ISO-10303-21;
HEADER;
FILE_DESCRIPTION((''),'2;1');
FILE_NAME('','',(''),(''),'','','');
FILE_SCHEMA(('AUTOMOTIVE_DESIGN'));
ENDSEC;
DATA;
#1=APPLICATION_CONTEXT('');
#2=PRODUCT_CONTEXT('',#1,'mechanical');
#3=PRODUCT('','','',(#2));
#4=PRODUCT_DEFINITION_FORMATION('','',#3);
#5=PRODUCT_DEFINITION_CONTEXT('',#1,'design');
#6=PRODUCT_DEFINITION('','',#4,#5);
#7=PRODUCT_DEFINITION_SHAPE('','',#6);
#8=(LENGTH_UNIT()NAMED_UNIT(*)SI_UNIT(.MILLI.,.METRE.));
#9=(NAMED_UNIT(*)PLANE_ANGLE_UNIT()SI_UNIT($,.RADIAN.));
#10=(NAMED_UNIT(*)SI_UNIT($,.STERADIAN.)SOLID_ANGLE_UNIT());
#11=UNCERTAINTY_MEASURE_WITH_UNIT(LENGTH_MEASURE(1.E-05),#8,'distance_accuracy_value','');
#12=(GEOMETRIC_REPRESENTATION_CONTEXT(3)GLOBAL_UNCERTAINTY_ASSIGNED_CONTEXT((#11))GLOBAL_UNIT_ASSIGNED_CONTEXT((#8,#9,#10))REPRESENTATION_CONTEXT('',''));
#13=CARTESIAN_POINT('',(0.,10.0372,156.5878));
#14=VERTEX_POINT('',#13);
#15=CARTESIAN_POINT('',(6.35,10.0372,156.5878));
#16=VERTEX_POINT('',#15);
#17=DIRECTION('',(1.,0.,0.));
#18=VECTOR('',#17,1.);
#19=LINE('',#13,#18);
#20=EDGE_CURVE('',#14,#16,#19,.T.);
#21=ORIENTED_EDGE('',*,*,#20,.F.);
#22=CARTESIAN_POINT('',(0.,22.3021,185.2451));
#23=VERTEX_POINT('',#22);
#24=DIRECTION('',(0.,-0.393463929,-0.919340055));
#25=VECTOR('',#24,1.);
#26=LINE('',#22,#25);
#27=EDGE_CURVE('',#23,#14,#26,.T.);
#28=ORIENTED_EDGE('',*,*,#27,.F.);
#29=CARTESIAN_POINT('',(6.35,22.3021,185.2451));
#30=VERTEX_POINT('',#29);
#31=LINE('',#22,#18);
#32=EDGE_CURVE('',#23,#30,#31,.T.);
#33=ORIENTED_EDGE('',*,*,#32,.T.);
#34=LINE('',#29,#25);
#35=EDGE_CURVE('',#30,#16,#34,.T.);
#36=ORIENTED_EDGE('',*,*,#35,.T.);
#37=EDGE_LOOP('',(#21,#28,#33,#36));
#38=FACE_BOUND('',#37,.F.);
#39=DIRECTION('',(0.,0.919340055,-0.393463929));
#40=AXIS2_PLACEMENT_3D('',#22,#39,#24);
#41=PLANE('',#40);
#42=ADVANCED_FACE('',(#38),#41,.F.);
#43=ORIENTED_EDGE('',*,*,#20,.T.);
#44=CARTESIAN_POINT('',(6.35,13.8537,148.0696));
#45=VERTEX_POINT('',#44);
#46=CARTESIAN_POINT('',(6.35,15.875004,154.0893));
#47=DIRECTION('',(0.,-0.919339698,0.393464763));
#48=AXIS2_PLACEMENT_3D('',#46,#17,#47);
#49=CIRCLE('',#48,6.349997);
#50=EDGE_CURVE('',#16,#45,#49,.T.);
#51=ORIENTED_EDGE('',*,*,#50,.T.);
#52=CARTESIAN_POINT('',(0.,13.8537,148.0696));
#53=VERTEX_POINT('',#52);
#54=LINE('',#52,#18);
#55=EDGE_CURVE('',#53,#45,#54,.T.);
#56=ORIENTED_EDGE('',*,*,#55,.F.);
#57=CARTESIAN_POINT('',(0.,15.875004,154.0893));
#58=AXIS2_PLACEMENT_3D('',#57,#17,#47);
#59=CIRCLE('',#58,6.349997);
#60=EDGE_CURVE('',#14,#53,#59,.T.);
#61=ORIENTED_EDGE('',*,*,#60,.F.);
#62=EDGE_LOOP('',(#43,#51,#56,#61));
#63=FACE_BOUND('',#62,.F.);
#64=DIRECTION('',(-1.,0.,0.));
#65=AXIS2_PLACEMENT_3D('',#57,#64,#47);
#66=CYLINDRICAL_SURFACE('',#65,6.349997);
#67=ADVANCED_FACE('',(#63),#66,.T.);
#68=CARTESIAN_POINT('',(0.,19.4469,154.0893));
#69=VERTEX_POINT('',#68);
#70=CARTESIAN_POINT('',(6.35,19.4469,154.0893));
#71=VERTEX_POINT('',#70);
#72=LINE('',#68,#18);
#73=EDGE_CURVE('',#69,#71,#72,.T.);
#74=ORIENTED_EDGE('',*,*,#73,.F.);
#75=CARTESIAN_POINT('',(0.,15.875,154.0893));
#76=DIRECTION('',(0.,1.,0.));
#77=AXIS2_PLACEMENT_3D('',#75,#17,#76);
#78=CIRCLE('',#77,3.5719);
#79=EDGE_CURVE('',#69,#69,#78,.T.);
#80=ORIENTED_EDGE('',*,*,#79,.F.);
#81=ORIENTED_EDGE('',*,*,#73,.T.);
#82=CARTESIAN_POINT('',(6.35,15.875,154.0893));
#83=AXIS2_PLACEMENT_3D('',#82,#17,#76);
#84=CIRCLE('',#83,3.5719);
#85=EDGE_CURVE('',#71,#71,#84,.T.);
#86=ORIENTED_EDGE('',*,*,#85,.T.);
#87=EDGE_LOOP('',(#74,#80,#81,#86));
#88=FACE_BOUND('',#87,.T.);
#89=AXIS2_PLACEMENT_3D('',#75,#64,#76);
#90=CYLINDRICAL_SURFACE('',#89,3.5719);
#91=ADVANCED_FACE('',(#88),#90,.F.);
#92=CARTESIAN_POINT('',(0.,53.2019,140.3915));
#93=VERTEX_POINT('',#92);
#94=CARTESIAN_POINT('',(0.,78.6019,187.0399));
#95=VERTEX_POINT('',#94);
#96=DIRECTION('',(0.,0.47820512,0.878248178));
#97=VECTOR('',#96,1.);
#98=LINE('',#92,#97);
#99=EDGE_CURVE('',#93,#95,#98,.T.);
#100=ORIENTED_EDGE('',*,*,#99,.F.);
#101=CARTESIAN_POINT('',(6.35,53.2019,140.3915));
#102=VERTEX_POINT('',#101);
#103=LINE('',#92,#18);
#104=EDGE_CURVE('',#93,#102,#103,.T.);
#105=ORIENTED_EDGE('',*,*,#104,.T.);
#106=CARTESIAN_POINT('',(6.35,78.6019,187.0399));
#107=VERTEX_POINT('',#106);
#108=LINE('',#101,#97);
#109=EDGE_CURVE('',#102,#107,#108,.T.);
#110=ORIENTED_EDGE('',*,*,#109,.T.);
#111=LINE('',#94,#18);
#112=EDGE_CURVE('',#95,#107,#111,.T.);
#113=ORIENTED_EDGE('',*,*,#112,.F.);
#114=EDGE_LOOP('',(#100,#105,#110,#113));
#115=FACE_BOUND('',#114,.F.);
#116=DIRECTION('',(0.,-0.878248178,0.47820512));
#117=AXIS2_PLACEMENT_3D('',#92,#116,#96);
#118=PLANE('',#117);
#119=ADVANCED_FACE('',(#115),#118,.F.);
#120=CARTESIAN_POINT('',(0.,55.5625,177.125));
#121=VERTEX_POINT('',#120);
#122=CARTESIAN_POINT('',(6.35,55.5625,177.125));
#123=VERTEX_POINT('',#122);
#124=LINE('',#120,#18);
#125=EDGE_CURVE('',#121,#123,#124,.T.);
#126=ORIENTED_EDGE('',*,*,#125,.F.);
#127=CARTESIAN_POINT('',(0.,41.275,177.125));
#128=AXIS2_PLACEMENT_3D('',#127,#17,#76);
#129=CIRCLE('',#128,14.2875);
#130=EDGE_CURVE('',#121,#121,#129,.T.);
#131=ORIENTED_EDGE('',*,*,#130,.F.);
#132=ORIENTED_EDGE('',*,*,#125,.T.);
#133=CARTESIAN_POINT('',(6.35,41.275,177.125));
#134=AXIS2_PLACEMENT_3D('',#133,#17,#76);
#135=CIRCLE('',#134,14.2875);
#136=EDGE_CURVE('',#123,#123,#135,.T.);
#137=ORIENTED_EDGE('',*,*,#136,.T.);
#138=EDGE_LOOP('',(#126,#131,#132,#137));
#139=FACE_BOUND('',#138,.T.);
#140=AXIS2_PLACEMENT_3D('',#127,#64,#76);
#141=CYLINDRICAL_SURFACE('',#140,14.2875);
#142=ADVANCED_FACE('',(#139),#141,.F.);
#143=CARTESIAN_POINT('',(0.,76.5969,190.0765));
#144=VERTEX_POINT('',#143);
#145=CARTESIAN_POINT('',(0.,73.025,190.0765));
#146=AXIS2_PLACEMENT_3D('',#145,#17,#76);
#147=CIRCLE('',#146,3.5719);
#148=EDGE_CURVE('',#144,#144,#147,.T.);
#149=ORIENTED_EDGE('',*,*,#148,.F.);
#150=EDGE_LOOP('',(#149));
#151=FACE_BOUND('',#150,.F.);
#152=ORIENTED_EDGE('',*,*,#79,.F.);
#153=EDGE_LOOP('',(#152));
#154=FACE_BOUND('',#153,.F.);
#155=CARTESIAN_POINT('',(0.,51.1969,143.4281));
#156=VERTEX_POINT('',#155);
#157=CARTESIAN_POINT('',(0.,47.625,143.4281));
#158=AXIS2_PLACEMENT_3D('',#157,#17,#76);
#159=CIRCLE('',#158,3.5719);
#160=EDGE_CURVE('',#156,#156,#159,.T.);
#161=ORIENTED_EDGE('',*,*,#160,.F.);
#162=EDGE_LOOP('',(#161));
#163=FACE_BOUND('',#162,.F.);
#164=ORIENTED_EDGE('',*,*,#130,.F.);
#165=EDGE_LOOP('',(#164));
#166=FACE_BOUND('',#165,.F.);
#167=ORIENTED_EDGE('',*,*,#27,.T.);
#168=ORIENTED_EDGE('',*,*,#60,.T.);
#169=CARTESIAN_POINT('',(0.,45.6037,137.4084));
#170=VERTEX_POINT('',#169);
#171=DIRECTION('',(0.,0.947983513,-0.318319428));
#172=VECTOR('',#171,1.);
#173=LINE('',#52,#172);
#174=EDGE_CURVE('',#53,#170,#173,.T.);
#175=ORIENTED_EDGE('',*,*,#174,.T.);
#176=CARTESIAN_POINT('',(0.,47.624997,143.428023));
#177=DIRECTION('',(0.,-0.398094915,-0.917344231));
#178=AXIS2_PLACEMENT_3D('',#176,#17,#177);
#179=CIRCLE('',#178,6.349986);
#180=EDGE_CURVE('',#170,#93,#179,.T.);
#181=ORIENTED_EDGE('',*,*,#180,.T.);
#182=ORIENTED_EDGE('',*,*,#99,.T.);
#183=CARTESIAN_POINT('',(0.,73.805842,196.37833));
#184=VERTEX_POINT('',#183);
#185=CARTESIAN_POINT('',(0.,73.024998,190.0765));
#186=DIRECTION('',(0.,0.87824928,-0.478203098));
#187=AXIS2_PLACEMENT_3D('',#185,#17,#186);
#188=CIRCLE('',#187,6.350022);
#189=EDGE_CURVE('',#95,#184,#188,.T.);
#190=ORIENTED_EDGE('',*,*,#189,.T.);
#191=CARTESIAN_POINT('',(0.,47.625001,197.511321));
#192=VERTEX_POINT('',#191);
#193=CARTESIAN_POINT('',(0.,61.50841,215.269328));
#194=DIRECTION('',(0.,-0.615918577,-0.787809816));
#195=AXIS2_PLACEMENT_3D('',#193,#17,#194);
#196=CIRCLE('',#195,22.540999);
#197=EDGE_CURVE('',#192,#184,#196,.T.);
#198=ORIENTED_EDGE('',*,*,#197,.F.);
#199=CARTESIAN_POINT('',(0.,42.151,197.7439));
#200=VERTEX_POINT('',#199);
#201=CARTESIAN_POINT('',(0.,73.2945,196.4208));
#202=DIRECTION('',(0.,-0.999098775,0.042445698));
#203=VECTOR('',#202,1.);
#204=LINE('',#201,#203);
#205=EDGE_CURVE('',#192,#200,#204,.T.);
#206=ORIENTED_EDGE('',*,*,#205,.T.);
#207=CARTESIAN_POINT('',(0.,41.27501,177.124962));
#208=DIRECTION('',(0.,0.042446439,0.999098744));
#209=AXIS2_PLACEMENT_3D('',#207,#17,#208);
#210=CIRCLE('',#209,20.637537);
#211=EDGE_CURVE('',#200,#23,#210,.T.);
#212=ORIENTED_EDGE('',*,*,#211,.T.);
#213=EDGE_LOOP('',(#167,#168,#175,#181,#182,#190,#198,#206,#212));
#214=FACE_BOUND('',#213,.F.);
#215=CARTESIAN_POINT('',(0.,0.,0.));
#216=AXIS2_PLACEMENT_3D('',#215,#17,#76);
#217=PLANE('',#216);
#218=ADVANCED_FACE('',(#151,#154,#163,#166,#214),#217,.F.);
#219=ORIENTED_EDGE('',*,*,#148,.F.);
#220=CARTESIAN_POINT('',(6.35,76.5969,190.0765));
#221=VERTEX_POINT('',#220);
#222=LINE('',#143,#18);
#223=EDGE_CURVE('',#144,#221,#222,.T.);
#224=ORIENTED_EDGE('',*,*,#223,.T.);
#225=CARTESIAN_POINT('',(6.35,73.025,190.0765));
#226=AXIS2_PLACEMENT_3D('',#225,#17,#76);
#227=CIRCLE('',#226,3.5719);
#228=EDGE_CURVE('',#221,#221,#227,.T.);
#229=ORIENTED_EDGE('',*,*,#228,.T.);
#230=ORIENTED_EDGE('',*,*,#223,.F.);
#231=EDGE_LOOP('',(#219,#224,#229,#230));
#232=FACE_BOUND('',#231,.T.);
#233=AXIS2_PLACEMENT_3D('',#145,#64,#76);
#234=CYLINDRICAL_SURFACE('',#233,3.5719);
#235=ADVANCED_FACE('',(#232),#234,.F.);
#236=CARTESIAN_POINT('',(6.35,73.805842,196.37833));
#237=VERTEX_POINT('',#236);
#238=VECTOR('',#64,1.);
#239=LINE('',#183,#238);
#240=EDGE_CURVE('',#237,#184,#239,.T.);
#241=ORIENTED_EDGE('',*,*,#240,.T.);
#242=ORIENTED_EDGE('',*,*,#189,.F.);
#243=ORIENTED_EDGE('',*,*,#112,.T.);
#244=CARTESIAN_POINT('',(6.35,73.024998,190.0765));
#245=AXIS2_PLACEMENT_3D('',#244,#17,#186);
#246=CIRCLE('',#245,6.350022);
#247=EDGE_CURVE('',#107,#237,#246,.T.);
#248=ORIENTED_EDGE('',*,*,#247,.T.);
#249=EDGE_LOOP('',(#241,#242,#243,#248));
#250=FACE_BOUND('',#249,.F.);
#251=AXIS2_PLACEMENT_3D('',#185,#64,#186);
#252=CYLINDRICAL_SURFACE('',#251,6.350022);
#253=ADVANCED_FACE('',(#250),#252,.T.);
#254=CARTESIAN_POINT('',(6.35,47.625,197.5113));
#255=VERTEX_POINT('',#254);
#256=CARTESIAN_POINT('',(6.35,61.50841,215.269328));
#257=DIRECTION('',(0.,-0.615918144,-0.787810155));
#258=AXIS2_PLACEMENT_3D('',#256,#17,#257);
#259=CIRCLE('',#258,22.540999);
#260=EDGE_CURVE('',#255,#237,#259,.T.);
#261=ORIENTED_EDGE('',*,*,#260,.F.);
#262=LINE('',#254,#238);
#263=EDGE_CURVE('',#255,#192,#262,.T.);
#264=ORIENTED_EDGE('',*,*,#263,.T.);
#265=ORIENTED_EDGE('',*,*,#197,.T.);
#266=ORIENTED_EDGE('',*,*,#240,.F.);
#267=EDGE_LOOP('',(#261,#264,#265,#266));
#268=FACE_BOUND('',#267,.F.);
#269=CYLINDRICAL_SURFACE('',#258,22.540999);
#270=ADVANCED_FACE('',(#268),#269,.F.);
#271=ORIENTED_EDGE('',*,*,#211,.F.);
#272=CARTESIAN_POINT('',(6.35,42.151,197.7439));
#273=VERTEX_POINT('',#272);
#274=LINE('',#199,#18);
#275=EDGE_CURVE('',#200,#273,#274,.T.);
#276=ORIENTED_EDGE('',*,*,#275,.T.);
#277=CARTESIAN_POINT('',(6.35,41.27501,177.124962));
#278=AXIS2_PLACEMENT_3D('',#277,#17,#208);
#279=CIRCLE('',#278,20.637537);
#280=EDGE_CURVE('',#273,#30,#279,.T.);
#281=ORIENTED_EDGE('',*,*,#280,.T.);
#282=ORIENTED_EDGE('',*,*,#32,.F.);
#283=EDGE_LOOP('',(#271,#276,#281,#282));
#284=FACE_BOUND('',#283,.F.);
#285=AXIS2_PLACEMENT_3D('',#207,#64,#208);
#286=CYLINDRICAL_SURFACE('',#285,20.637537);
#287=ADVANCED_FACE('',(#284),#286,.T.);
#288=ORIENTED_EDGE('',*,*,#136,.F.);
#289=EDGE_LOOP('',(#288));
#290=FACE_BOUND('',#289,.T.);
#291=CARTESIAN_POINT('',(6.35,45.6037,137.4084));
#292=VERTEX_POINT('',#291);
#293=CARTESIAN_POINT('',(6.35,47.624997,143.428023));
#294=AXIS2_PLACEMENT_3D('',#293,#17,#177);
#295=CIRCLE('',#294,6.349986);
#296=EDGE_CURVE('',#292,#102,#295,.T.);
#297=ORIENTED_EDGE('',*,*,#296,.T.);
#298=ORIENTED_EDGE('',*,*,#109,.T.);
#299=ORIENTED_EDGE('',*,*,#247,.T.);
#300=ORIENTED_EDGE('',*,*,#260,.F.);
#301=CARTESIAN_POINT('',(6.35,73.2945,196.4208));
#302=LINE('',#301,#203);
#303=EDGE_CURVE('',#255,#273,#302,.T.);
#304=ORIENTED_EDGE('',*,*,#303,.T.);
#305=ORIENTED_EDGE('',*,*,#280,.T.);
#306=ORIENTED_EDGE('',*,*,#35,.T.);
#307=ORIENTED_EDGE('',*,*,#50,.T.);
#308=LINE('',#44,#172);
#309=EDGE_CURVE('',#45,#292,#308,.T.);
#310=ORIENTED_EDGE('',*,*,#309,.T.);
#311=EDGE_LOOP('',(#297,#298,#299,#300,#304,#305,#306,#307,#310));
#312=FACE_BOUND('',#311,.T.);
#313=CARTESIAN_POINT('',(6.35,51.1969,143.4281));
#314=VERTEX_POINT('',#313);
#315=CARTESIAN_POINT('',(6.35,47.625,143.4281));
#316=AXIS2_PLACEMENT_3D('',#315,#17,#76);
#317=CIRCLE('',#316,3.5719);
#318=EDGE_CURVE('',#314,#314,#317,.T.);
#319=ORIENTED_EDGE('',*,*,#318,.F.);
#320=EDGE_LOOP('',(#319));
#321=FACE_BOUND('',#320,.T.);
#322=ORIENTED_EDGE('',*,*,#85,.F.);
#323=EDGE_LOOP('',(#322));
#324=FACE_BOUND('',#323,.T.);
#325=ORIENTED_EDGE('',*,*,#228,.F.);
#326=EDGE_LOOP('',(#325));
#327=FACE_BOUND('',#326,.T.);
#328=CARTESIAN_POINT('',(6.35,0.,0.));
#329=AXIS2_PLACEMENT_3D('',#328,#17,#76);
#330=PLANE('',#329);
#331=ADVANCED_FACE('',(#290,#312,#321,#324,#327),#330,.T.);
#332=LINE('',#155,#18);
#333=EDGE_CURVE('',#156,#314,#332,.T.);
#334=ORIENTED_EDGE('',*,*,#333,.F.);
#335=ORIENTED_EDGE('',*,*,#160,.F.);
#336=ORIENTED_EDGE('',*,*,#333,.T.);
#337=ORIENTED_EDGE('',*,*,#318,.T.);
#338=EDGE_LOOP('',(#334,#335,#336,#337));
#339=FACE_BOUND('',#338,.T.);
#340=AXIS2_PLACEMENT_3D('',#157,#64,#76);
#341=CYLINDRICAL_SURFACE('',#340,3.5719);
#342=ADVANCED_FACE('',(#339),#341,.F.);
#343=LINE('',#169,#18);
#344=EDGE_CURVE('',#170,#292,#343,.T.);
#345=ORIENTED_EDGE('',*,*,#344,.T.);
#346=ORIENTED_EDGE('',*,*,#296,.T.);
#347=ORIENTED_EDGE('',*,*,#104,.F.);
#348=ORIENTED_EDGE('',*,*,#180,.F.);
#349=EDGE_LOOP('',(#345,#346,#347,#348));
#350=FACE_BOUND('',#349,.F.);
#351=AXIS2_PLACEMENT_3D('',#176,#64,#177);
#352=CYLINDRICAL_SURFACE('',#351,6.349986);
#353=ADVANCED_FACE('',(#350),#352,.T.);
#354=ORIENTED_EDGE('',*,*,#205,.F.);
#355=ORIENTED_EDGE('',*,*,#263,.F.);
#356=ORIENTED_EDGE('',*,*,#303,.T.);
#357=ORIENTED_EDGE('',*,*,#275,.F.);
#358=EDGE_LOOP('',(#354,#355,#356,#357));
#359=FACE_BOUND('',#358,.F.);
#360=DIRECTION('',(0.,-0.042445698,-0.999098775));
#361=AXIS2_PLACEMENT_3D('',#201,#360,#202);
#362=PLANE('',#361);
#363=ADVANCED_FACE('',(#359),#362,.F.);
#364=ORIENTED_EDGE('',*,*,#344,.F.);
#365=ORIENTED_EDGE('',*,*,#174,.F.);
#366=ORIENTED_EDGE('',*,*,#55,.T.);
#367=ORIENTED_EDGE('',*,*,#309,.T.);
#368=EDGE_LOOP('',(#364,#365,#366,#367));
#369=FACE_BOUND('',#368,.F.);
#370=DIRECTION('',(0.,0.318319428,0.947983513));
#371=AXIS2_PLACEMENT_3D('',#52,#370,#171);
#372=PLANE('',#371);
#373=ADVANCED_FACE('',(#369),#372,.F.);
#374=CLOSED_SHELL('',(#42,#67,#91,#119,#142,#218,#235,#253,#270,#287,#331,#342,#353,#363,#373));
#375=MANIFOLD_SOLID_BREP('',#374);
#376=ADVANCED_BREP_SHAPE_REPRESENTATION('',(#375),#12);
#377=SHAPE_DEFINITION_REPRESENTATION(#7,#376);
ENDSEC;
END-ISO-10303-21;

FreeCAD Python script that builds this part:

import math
import FreeCAD as App
import Part
import Sketcher
from FreeCAD import Vector
Q = App.Units.Quantity

doc = App.newDocument("Part")
body = doc.addObject("PartDesign::Body", "Body")

sketch1 = body.newObject("Sketcher::SketchObject", "Sketch")
sketch1.AttachmentSupport = (doc.getObject("YZ_Plane"), [""])
sketch1.MapMode = "FlatFace"
sketch1.addGeometry([
    Part.ArcOfCircle(Part.Circle(Vector(73, 190.1, 0), Vector(0, 0, 1), 6.4), math.radians(-29), math.radians(88)),
    Part.LineSegment(Vector(73.3, 196.4, 0), Vector(42.2, 197.7, 0)),
    Part.ArcOfCircle(Part.Circle(Vector(41.3, 177.1, 0), Vector(0, 0, 1), 20.6), math.radians(88), math.radians(157)),
    Part.LineSegment(Vector(22.3, 185.2, 0), Vector(10, 156.6, 0)),
    Part.ArcOfCircle(Part.Circle(Vector(15.9, 154.1, 0), Vector(0, 0, 1), 6.3), math.radians(157), math.radians(251)),
    Part.LineSegment(Vector(13.9, 148.1, 0), Vector(45.6, 137.4, 0)),
    Part.ArcOfCircle(Part.Circle(Vector(47.6, 143.4, 0), Vector(0, 0, 1), 6.3), math.radians(-109), math.radians(-29)),
    Part.LineSegment(Vector(53.2, 140.4, 0), Vector(78.6, 187, 0)),
    Part.Circle(Vector(15.9, 154.1, 0), Vector(0, 0, 1), 3.6),
    Part.Circle(Vector(47.6, 143.4, 0), Vector(0, 0, 1), 3.6),
    Part.Circle(Vector(41.3, 177.1, 0), Vector(0, 0, 1), 14.3),
    Part.Circle(Vector(73, 190.1, 0), Vector(0, 0, 1), 3.6),
], False)
sketch1.addConstraint([
    Sketcher.Constraint("Tangent", 0, 2, 1, 1),
    Sketcher.Constraint("Tangent", 1, 2, 2, 1),
    Sketcher.Constraint("Tangent", 2, 2, 3, 1),
    Sketcher.Constraint("Tangent", 3, 2, 4, 1),
    Sketcher.Constraint("Tangent", 4, 2, 5, 1),
    Sketcher.Constraint("Tangent", 5, 2, 6, 1),
    Sketcher.Constraint("Tangent", 6, 2, 7, 1),
    Sketcher.Constraint("Tangent", 7, 2, 0, 1),
    Sketcher.Constraint("Coincident", 8, 3, 4, 3),
    Sketcher.Constraint("Coincident", 9, 3, 6, 3),
    Sketcher.Constraint("Coincident", 10, 3, 2, 3),
    Sketcher.Constraint("Coincident", 11, 3, 0, 3),
    Sketcher.Constraint("Equal", 0, 4),
    Sketcher.Constraint("Equal", 4, 6),
    Sketcher.Constraint("Equal", 8, 9),
    Sketcher.Constraint("Equal", 9, 11),
    Sketcher.Constraint("Equal", 1, 3),
    Sketcher.Constraint("Radius", 0, Q("0.25 in")),
    Sketcher.Constraint("Diameter", 8, Q("0.281252 in")),
    Sketcher.Constraint("DistanceX", 2, 3, 6, 3, Q("0.25 in")),
    Sketcher.Constraint("Diameter", 10, Q("1.125 in")),
    Sketcher.Constraint("Radius", 2, Q("0.8125 in")),
    Sketcher.Constraint("DistanceX", 4, 3, 2, 3, Q("1 in")),
    Sketcher.Constraint("DistanceX", 6, 3, 0, 3, Q("1 in")),
    Sketcher.Constraint("Angle", 3, Q("-113.1702 deg")),
    Sketcher.Constraint("DistanceX", -1, 1, 0, 3, Q("2.875 in")),
    Sketcher.Constraint("DistanceY", 4, 2, 4, 3, Q("0.237 in")),
    Sketcher.Constraint("DistanceY", -1, 1, 4, 3, Q("6.0665 in")),
])
pad1 = body.newObject("PartDesign::Pad", "Pad")
pad1.Profile = sketch1
pad1.Length = Q("0.25 in")

sketch2 = body.newObject("Sketcher::SketchObject", "Sketch001")
sketch2.AttachmentSupport = (doc.getObject("YZ_Plane"), [""])
sketch2.MapMode = "FlatFace"
sketch2.AttachmentOffset = App.Placement(Vector(0, 0, 0.25 * 25.4), App.Rotation())
sketch2.addGeometry([
    Part.LineSegment(Vector(74, 196, 0), Vector(48, 198, 0)),
    Part.ArcOfCircle(Part.Circle(Vector(62, 215, 0), Vector(0, 0, 1), 23), math.radians(-128), math.radians(-57)),
], False)
sketch2.addConstraint([
    Sketcher.Constraint("Coincident", 0, 1, 1, 2),
    Sketcher.Constraint("Coincident", 1, 1, 0, 2),
    Sketcher.Constraint("Radius", 1, 22.541),
    Sketcher.Constraint("DistanceX", -1, 1, 1, 1, Q("1.875 in")),
    Sketcher.Constraint("DistanceX", -1, 1, 1, 3, Q("2.4216 in")),
    Sketcher.Constraint("DistanceY", -1, 1, 0, 1, Q("7.7322 in")),
    Sketcher.Constraint("Distance", 0, 26.2343),
])
pocket1 = body.newObject("PartDesign::Pocket", "Pocket")
pocket1.Profile = sketch2
pocket1.Length = Q("1 in")

doc.recompute()
